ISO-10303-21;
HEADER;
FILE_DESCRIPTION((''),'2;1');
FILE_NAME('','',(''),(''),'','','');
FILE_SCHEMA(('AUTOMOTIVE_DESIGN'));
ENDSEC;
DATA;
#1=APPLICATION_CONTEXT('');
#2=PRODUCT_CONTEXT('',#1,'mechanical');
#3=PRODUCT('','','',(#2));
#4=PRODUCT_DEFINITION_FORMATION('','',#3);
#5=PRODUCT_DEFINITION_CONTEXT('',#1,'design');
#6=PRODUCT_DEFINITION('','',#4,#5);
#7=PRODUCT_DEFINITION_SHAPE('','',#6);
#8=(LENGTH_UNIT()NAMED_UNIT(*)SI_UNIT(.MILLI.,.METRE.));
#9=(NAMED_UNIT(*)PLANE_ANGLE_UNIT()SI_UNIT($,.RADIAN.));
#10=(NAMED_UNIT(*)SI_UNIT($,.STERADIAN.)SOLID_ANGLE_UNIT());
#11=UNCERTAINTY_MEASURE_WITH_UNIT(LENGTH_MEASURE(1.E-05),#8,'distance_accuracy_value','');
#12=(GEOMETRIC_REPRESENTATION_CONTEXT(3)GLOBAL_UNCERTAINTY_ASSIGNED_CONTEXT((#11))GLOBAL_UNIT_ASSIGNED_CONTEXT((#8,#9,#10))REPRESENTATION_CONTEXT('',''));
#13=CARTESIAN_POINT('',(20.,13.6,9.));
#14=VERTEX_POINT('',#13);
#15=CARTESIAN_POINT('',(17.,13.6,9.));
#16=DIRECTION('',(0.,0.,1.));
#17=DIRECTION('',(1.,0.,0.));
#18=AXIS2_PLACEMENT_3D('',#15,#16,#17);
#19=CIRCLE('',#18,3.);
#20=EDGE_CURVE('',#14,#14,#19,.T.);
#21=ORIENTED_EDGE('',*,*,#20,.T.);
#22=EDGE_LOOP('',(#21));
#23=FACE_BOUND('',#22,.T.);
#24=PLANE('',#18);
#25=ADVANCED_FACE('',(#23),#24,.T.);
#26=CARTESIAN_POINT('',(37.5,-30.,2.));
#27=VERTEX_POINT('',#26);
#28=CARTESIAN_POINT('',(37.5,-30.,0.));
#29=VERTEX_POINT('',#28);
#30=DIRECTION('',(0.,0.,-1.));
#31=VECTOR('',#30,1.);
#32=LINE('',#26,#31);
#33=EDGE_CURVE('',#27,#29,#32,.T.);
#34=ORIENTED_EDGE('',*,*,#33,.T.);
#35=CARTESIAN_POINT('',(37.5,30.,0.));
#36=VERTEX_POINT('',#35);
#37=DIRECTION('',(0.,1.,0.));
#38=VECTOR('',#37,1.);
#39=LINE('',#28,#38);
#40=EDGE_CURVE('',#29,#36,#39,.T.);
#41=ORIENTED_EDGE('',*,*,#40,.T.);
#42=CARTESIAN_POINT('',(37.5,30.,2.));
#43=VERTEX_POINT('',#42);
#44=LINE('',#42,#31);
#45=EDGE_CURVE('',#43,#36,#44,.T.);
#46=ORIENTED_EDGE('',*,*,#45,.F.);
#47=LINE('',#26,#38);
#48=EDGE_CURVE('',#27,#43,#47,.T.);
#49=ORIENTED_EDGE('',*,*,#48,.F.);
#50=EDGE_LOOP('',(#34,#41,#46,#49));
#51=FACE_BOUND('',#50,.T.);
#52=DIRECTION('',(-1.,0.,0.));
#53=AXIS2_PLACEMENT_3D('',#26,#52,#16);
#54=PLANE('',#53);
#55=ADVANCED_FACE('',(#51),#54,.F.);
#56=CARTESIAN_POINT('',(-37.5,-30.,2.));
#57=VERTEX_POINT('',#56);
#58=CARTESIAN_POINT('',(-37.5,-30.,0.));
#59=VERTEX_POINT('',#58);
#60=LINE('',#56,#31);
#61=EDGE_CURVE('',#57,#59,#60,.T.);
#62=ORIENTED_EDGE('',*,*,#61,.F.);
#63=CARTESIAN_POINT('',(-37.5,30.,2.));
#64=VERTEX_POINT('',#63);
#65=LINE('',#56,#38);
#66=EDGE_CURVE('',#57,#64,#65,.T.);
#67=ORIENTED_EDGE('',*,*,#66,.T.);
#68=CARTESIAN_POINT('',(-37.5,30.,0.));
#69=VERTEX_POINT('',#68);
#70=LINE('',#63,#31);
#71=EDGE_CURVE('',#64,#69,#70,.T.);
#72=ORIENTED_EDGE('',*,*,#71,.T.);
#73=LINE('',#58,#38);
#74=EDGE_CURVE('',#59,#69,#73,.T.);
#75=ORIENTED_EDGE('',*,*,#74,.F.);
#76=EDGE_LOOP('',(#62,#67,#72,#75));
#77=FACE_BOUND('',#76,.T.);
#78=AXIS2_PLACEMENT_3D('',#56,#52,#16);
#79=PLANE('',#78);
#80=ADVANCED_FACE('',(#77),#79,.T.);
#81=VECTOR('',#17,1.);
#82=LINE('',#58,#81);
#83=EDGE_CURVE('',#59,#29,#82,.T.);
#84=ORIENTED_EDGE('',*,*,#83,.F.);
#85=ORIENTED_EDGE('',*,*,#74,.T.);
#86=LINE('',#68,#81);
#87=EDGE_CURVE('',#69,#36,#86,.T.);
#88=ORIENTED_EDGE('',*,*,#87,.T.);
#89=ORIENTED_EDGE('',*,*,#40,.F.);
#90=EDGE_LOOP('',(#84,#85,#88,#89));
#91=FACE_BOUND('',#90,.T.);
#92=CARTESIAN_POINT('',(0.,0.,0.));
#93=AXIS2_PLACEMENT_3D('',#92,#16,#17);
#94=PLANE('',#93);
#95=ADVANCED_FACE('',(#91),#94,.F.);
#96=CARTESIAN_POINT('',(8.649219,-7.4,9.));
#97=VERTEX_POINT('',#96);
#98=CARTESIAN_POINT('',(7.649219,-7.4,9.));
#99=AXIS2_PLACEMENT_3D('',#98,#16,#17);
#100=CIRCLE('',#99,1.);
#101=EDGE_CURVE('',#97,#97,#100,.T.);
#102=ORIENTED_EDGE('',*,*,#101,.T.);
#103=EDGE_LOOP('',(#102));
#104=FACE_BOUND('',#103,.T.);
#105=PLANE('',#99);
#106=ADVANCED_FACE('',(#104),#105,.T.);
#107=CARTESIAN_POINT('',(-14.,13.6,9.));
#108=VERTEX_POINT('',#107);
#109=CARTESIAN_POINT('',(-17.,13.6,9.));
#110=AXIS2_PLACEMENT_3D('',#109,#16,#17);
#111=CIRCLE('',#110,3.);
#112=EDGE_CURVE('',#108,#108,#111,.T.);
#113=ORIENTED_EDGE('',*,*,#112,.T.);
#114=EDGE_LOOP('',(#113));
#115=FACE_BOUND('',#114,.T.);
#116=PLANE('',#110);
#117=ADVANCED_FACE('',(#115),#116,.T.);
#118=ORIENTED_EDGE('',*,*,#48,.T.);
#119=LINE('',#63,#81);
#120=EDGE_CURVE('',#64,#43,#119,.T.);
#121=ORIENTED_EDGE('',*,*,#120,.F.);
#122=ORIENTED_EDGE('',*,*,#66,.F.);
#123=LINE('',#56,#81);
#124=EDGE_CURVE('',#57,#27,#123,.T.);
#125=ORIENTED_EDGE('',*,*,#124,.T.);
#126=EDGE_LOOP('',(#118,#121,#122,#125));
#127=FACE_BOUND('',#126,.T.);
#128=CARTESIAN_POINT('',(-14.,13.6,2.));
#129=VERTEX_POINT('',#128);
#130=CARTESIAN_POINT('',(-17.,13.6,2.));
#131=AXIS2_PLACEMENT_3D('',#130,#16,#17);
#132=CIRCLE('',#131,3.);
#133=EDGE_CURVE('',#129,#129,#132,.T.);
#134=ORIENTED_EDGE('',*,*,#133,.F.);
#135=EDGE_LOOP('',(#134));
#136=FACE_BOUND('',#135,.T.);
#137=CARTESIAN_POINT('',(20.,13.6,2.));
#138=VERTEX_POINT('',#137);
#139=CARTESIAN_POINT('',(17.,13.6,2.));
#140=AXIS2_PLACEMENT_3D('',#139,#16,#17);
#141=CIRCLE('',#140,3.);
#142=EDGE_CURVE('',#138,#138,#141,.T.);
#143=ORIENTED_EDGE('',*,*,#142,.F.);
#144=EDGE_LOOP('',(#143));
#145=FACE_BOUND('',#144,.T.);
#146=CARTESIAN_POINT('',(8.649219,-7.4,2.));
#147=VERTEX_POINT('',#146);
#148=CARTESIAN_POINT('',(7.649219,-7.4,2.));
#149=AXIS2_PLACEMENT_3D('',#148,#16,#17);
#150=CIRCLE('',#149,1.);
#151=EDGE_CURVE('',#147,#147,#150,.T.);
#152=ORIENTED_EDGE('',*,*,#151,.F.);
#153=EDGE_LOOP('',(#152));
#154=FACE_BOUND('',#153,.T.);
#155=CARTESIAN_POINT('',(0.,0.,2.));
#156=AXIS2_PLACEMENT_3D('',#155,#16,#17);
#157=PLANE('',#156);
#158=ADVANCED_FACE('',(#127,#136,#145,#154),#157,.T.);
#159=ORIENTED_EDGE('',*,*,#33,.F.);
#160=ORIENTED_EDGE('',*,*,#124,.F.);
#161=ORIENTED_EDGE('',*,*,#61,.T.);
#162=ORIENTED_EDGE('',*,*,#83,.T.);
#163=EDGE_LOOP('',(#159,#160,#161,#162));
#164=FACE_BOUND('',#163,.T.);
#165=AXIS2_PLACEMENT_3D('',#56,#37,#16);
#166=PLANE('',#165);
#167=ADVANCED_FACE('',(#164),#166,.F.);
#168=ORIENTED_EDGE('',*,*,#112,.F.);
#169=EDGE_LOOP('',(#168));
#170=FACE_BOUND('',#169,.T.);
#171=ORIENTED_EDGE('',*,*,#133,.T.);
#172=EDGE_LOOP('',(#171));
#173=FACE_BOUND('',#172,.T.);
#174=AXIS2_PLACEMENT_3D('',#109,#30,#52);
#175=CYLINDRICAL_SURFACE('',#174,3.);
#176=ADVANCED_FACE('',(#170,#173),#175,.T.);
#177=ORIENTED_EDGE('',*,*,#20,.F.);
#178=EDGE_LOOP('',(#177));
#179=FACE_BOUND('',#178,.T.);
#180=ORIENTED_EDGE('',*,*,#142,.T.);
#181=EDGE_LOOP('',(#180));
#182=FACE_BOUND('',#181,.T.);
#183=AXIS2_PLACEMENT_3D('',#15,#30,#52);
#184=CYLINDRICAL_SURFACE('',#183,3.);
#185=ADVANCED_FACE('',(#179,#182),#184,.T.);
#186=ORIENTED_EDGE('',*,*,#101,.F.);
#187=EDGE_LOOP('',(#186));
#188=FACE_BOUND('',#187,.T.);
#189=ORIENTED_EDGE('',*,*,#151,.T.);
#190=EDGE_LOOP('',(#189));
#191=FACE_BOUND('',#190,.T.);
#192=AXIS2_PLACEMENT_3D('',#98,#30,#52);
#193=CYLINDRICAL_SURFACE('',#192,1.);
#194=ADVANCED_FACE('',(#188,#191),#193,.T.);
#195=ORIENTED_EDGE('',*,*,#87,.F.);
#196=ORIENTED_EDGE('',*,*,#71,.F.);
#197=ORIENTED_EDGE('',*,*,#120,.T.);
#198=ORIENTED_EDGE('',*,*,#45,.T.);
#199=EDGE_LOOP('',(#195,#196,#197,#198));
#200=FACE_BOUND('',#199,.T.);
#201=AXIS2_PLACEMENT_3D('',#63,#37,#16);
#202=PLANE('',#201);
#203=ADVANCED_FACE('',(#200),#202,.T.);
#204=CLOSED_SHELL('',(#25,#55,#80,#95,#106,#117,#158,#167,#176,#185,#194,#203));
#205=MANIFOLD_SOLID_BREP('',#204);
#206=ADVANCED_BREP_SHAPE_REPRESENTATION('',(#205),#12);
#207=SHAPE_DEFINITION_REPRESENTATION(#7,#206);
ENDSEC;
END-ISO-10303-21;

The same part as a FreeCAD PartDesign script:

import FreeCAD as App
import Part
import Sketcher
from FreeCAD import Vector

doc = App.newDocument("Part")
body = doc.addObject("PartDesign::Body", "Body")

sketch1 = body.newObject("Sketcher::SketchObject", "Sketch")
sketch1.AttachmentSupport = (doc.getObject("XY_Plane"), [""])
sketch1.MapMode = "FlatFace"
sketch1.addGeometry([
    Part.LineSegment(Vector(-38, 30, 0), Vector(-38, -30, 0)),
    Part.LineSegment(Vector(-38, -30, 0), Vector(38, -30, 0)),
    Part.LineSegment(Vector(38, -30, 0), Vector(38, 30, 0)),
    Part.LineSegment(Vector(38, 30, 0), Vector(-38, 30, 0)),
], False)
sketch1.addConstraint([
    Sketcher.Constraint("Coincident", 0, 2, 1, 1),
    Sketcher.Constraint("Coincident", 1, 2, 2, 1),
    Sketcher.Constraint("Coincident", 2, 2, 3, 1),
    Sketcher.Constraint("Coincident", 3, 2, 0, 1),
    Sketcher.Constraint("Vertical", 0),
    Sketcher.Constraint("Horizontal", 1),
    Sketcher.Constraint("Vertical", 2),
    Sketcher.Constraint("Horizontal", 3),
    Sketcher.Constraint("Symmetric", 0, 2, 2, 2, -1, 1),
    Sketcher.Constraint("DistanceX", 1, 1, 1, 2, 75.0),
    Sketcher.Constraint("DistanceY", 0, 2, 0, 1, 60.0),
])
pad1 = body.newObject("PartDesign::Pad", "Pad")
pad1.Profile = sketch1
pad1.Length = 2

sketch2 = body.newObject("Sketcher::SketchObject", "Sketch001")
sketch2.AttachmentSupport = (doc.getObject("XY_Plane"), [""])
sketch2.MapMode = "FlatFace"
sketch2.AttachmentOffset = App.Placement(Vector(0, 0, 2), App.Rotation())
sketch2.addGeometry([
    Part.Circle(Vector(-17, 13.6, 0), Vector(0, 0, 1), 3),
    Part.Circle(Vector(17, 13.6, 0), Vector(0, 0, 1), 3),
    Part.Circle(Vector(7.6, -7.4, 0), Vector(0, 0, 1), 1),
], False)
sketch2.addConstraint([
    Sketcher.Constraint("Equal", 0, 1),
    Sketcher.Constraint("Symmetric", 0, 3, 1, 3, -2),
    Sketcher.Constraint("Diameter", 0, 6.0),
    Sketcher.Constraint("Diameter", 2, 2.0),
    Sketcher.Constraint("DistanceX", 0, 3, -1, 1, 17.0),
    Sketcher.Constraint("DistanceY", 2, 3, 1, 3, 21.0),
    Sketcher.Constraint("DistanceY", -1, 1, 0, 3, 13.6),
    Sketcher.Constraint("DistanceX", -1, 1, 2, 3, 7.649219),
])
pad2 = body.newObject("PartDesign::Pad", "Pad001")
pad2.Profile = sketch2
pad2.Length = 7

doc.recompute()
